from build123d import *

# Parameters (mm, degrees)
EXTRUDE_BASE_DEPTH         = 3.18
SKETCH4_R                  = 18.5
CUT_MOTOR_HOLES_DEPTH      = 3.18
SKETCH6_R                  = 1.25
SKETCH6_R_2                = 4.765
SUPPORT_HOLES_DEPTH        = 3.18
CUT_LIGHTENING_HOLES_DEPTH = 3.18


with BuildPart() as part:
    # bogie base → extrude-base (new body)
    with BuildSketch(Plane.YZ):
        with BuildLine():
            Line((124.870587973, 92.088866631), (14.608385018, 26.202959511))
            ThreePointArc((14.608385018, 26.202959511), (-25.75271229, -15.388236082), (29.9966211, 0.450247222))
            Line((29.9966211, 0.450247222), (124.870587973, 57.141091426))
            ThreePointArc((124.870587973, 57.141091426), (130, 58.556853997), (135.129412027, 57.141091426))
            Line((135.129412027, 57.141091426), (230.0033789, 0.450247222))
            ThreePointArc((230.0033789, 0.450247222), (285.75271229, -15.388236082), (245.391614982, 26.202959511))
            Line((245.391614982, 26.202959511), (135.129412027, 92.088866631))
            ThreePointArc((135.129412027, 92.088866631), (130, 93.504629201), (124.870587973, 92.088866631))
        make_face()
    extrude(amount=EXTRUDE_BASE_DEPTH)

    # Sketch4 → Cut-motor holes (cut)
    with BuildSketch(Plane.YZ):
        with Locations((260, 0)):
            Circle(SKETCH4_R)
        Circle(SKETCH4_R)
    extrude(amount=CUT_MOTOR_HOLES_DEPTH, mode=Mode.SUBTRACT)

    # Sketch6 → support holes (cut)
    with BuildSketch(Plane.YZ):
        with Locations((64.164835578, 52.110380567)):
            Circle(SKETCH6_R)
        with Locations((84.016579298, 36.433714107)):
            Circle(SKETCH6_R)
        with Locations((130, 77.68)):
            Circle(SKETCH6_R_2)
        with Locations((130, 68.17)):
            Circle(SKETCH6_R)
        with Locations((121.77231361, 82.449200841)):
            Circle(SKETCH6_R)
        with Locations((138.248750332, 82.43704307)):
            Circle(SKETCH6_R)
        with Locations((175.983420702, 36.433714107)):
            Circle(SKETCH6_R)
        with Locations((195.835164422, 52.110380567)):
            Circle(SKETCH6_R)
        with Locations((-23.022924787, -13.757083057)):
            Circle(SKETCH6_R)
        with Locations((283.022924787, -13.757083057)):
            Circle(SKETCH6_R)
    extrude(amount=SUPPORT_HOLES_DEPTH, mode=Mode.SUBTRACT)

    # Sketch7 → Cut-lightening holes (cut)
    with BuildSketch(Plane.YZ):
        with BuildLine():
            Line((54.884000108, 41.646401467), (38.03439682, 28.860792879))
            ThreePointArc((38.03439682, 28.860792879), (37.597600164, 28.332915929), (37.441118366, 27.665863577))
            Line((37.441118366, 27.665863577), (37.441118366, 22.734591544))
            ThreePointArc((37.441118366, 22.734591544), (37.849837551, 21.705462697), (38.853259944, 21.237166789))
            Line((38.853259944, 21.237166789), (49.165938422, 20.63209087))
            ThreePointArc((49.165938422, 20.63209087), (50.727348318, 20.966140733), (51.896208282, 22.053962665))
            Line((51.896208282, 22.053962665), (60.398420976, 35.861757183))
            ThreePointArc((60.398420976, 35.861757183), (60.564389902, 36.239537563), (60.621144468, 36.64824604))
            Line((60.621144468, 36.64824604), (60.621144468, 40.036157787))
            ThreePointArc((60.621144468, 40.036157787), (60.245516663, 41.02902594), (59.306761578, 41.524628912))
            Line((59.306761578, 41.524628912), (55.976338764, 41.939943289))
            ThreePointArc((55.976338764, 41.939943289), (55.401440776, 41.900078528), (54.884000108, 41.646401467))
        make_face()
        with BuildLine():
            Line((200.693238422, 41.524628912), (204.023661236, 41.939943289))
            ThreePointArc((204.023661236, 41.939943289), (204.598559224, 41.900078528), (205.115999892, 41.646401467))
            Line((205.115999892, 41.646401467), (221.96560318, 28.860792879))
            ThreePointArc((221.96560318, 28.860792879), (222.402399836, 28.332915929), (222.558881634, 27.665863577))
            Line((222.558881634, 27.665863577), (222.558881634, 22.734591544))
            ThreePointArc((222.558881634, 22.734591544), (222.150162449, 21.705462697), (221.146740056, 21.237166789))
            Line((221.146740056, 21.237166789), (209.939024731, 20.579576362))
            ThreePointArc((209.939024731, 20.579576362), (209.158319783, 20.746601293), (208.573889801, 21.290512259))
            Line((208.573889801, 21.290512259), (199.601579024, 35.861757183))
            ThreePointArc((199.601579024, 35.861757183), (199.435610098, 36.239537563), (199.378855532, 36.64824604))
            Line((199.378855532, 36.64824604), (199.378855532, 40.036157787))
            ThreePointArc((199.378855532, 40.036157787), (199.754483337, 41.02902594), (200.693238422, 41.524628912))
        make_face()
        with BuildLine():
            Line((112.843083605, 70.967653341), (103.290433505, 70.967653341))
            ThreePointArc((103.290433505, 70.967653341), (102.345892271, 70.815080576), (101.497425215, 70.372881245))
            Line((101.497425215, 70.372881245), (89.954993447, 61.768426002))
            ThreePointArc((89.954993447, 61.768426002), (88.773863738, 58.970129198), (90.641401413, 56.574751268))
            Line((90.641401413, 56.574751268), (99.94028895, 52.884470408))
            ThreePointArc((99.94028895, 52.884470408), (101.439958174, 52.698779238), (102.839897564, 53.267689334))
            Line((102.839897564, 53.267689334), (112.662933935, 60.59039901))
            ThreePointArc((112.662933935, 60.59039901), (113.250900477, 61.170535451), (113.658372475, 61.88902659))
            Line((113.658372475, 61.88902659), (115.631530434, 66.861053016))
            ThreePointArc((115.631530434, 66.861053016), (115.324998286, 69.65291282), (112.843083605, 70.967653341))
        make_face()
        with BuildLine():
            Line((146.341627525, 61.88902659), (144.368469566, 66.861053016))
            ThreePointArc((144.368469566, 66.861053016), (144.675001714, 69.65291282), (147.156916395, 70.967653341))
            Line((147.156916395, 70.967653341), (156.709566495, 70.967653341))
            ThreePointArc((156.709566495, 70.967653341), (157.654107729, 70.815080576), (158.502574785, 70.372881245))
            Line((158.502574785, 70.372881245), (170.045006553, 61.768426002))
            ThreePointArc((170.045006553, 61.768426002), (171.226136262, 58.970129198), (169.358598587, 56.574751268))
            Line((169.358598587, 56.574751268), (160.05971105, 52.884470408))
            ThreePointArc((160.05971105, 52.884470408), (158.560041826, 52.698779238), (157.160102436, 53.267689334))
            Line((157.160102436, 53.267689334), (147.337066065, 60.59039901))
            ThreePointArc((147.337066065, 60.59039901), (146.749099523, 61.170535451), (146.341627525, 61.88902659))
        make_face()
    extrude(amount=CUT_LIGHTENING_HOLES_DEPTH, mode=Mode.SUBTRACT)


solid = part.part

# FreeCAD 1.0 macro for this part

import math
import FreeCAD as App
import Part
import Sketcher

V = App.Vector
Q = App.Units.Quantity

doc = App.newDocument("Part")
body = doc.addObject("PartDesign::Body", "Body")

sketch1 = doc.addObject("Sketcher::SketchObject", "Sketch")
body.addObject(sketch1)
sketch1.AttachmentSupport = (doc.YZ_Plane, [""])
sketch1.MapMode = "FlatFace"
sketch1.addGeometry(Part.LineSegment(V(124.870588, 92.088867, 0), V(14.608385, 26.20296, 0)), False)
sketch1.addGeometry(Part.ArcOfCircle(Part.Circle(V(0, 0, 0), V(0, 0, 1), 30), math.radians(60.859941), math.radians(360.859941)), False)
sketch1.addGeometry(Part.LineSegment(V(29.996621, 0.450247, 0), V(124.870588, 57.141091, 0)), False)
sketch1.addGeometry(Part.ArcOfCircle(Part.Circle(V(130, 48.556854, 0), V(0, 0, 1), 10), math.radians(59.140059), math.radians(120.859941)), False)
sketch1.addGeometry(Part.LineSegment(V(135.129412, 57.141091, 0), V(230.003379, 0.450247, 0)), False)
sketch1.addGeometry(Part.ArcOfCircle(Part.Circle(V(260, 0, 0), V(0, 0, 1), 30), math.radians(179.140059), math.radians(479.140059)), False)
sketch1.addGeometry(Part.LineSegment(V(245.391615, 26.20296, 0), V(135.129412, 92.088867, 0)), False)
sketch1.addGeometry(Part.ArcOfCircle(Part.Circle(V(130, 83.504629, 0), V(0, 0, 1), 10), math.radians(59.140059), math.radians(120.859941)), False)
sketch1.addConstraint(Sketcher.Constraint("Coincident", 0, 2, 1, 1))
sketch1.addConstraint(Sketcher.Constraint("Coincident", 1, 2, 2, 1))
sketch1.addConstraint(Sketcher.Constraint("Tangent", 2, 2, 3, 2))
sketch1.addConstraint(Sketcher.Constraint("Tangent", 3, 1, 4, 1))
sketch1.addConstraint(Sketcher.Constraint("Coincident", 4, 2, 5, 1))
sketch1.addConstraint(Sketcher.Constraint("Coincident", 5, 2, 6, 1))
sketch1.addConstraint(Sketcher.Constraint("Tangent", 6, 2, 7, 1))
sketch1.addConstraint(Sketcher.Constraint("Tangent", 7, 2, 0, 1))
sketch1.addConstraint(Sketcher.Constraint("Coincident", 1, 3, -1, 1))
sketch1.addConstraint(Sketcher.Constraint("Equal", 1, 5))
sketch1.addConstraint(Sketcher.Constraint("Equal", 3, 7))
sketch1.addConstraint(Sketcher.Constraint("PointOnObject", 5, 3, -1))
sketch1.addConstraint(Sketcher.Constraint("Parallel", 0, 2))
sketch1.addConstraint(Sketcher.Constraint("Parallel", 4, 6))
sketch1.addConstraint(Sketcher.Constraint("Horizontal", 2, 2, 3, 1))
sketch1.addConstraint(Sketcher.Constraint("Horizontal", 1, 2, 4, 2))
sketch1.addConstraint(Sketcher.Constraint("Horizontal", 0, 2, 5, 2))
sketch1.addConstraint(Sketcher.Constraint("Radius", 1, Q("30 mm")))
sketch1.addConstraint(Sketcher.Constraint("Radius", 3, Q("10 mm")))
sketch1.addConstraint(Sketcher.Constraint("DistanceX", -1, 1, 3, 3, Q("130 mm")))
sketch1.addConstraint(Sketcher.Constraint("Distance", 0, Q("128.447289 mm")))
sketch1.addConstraint(Sketcher.Constraint("DistanceY", -1, 1, 7, 3, Q("83.504629 mm")))
sketch1.addConstraint(Sketcher.Constraint("DistanceX", -1, 1, 1, 2, Q("29.996621 mm")))
pad1 = doc.addObject("PartDesign::Pad", "Pad")
body.addObject(pad1)
pad1.Profile = sketch1
pad1.Length = 3.18

sketch2 = doc.addObject("Sketcher::SketchObject", "Sketch001")
body.addObject(sketch2)
sketch2.AttachmentSupport = (doc.YZ_Plane, [""])
sketch2.MapMode = "FlatFace"
sketch2.addGeometry(Part.Circle(V(260, 0, 0), V(0, 0, 1), 18.5), False)
sketch2.addGeometry(Part.Circle(V(0, 0, 0), V(0, 0, 1), 18.5), False)
sketch2.addConstraint(Sketcher.Constraint("Coincident", 1, 3, -1, 1))
sketch2.addConstraint(Sketcher.Constraint("Equal", 0, 1))
sketch2.addConstraint(Sketcher.Constraint("PointOnObject", 0, 3, -1))
sketch2.addConstraint(Sketcher.Constraint("Diameter", 0, Q("37 mm")))
sketch2.addConstraint(Sketcher.Constraint("DistanceX", -1, 1, 0, 3, Q("260 mm")))
pocket1 = doc.addObject("PartDesign::Pocket", "Pocket")
body.addObject(pocket1)
pocket1.Profile = sketch2
pocket1.Length = 3.18
pocket1.Reversed = True

sketch3 = doc.addObject("Sketcher::SketchObject", "Sketch002")
body.addObject(sketch3)
sketch3.AttachmentSupport = (doc.YZ_Plane, [""])
sketch3.MapMode = "FlatFace"
sketch3.addGeometry(Part.Circle(V(64.164836, 52.110381, 0), V(0, 0, 1), 1.25), False)
sketch3.addGeometry(Part.Circle(V(84.016579, 36.433714, 0), V(0, 0, 1), 1.25), False)
sketch3.addGeometry(Part.Circle(V(130, 77.68, 0), V(0, 0, 1), 4.765), False)
sketch3.addGeometry(Part.Circle(V(130, 68.17, 0), V(0, 0, 1), 1.25), False)
sketch3.addGeometry(Part.Circle(V(121.772314, 82.449201, 0), V(0, 0, 1), 1.25), False)
sketch3.addGeometry(Part.Circle(V(138.24875, 82.437043, 0), V(0, 0, 1), 1.25), False)
sketch3.addGeometry(Part.Circle(V(175.983421, 36.433714, 0), V(0, 0, 1), 1.25), False)
sketch3.addGeometry(Part.Circle(V(195.835164, 52.110381, 0), V(0, 0, 1), 1.25), False)
sketch3.addGeometry(Part.Circle(V(-23.022925, -13.757083, 0), V(0, 0, 1), 1.25), False)
sketch3.addGeometry(Part.Circle(V(283.022925, -13.757083, 0), V(0, 0, 1), 1.25), False)
sketch3.addConstraint(Sketcher.Constraint("Equal", 0, 1))
sketch3.addConstraint(Sketcher.Constraint("Equal", 1, 3))
sketch3.addConstraint(Sketcher.Constraint("Equal", 3, 4))
sketch3.addConstraint(Sketcher.Constraint("Equal", 4, 5))
sketch3.addConstraint(Sketcher.Constraint("Equal", 5, 6))
sketch3.addConstraint(Sketcher.Constraint("Equal", 6, 7))
sketch3.addConstraint(Sketcher.Constraint("Equal", 7, 8))
sketch3.addConstraint(Sketcher.Constraint("Equal", 8, 9))
sketch3.addConstraint(Sketcher.Constraint("Horizontal", 1, 3, 6, 3))
sketch3.addConstraint(Sketcher.Constraint("Horizontal", 0, 3, 7, 3))
sketch3.addConstraint(Sketcher.Constraint("Horizontal", 8, 3, 9, 3))
sketch3.addConstraint(Sketcher.Constraint("Vertical", 2, 3, 3, 3))
sketch3.addConstraint(Sketcher.Constraint("Diameter", 0, Q("2.5 mm")))
sketch3.addConstraint(Sketcher.Constraint("Diameter", 2, Q("9.53 mm")))
sketch3.addConstraint(Sketcher.Constraint("DistanceX", -1, 1, 2, 3, Q("130 mm")))
sketch3.addConstraint(Sketcher.Constraint("DistanceY", -1, 1, 2, 3, Q("77.68 mm")))
sketch3.addConstraint(Sketcher.Constraint("DistanceY", -1, 1, 3, 3, Q("68.17 mm")))
sketch3.addConstraint(Sketcher.Constraint("DistanceY", -1, 1, 4, 3, Q("82.449201 mm")))
sketch3.addConstraint(Sketcher.Constraint("DistanceY", -1, 1, 0, 3, Q("52.110381 mm")))
sketch3.addConstraint(Sketcher.Constraint("DistanceX", -1, 1, 1, 3, Q("84.016579 mm")))
sketch3.addConstraint(Sketcher.Constraint("DistanceX", -1, 1, 5, 3, Q("138.24875 mm")))
sketch3.addConstraint(Sketcher.Constraint("DistanceX", -1, 1, 6, 3, Q("175.983421 mm")))
sketch3.addConstraint(Sketcher.Constraint("DistanceX", 0, 3, 4, 3, Q("57.607478 mm")))
sketch3.addConstraint(Sketcher.Constraint("DistanceY", 1, 3, 5, 3, Q("46.003329 mm")))
sketch3.addConstraint(Sketcher.Constraint("DistanceX", 4, 3, 7, 3, Q("74.062851 mm")))
sketch3.addConstraint(Sketcher.Constraint("DistanceX", 8, 3, 0, 3, Q("87.18776 mm")))
sketch3.addConstraint(Sketcher.Constraint("DistanceX", 7, 3, 9, 3, Q("87.18776 mm")))
sketch3.addConstraint(Sketcher.Constraint("DistanceX", -1, 1, 0, 3, Q("64.164836 mm")))
sketch3.addConstraint(Sketcher.Constraint("DistanceY", -1, 1, 1, 3, Q("36.433714 mm")))
sketch3.addConstraint(Sketcher.Constraint("DistanceY", 8, 3, -1, 1, Q("13.757083 mm")))
pocket2 = doc.addObject("PartDesign::Pocket", "Pocket001")
body.addObject(pocket2)
pocket2.Profile = sketch3
pocket2.Length = 3.18
pocket2.Reversed = True

sketch4 = doc.addObject("Sketcher::SketchObject", "Sketch003")
body.addObject(sketch4)
sketch4.AttachmentSupport = (doc.YZ_Plane, [""])
sketch4.MapMode = "FlatFace"
sketch4.addGeometry(Part.LineSegment(V(54.884, 41.646401, 0), V(38.034397, 28.860793, 0)), False)
sketch4.addGeometry(Part.ArcOfCircle(Part.Circle(V(38.941118, 27.665864, 0), V(0, 0, 1), 1.5), math.radians(127.191506), math.radians(180)), False)
sketch4.addGeometry(Part.LineSegment(V(37.441118, 27.665864, 0), V(37.441118, 22.734592, 0)), False)
sketch4.addGeometry(Part.ArcOfCircle(Part.Circle(V(38.941118, 22.734592, 0), V(0, 0, 1), 1.5), math.radians(180), math.radians(266.642134)), False)
sketch4.addGeometry(Part.LineSegment(V(38.85326, 21.237167, 0), V(49.165938, 20.632091, 0)), False)
sketch4.addGeometry(Part.ArcOfCircle(Part.Circle(V(49.341655, 23.62694, 0), V(0, 0, 1), 3), math.radians(-93.357866), math.radians(-31.622875)), False)
sketch4.addGeometry(Part.LineSegment(V(51.896208, 22.053963, 0), V(60.398421, 35.861757, 0)), False)
sketch4.addGeometry(Part.ArcOfCircle(Part.Circle(V(59.121144, 36.648246, 0), V(0, 0, 1), 1.5), math.radians(-31.622875), math.radians(0)), False)
sketch4.addGeometry(Part.LineSegment(V(60.621144, 36.648246, 0), V(60.621144, 40.036158, 0)), False)
sketch4.addGeometry(Part.ArcOfCircle(Part.Circle(V(59.121144, 40.036158, 0), V(0, 0, 1), 1.5), math.radians(0), math.radians(82.891728)), False)
sketch4.addGeometry(Part.LineSegment(V(59.306762, 41.524629, 0), V(55.976339, 41.939943, 0)), False)
sketch4.addGeometry(Part.ArcOfCircle(Part.Circle(V(55.790722, 40.451472, 0), V(0, 0, 1), 1.5), math.radians(82.891728), math.radians(127.191506)), False)
sketch4.addGeometry(Part.LineSegment(V(204.023661, 41.939943, 0), V(200.693238, 41.524629, 0)), False)
sketch4.addGeometry(Part.ArcOfCircle(Part.Circle(V(200.878856, 40.036158, 0), V(0, 0, 1), 1.5), math.radians(97.108272), math.radians(180)), False)
sketch4.addGeometry(Part.LineSegment(V(199.378856, 40.036158, 0), V(199.378856, 36.648246, 0)), False)
sketch4.addGeometry(Part.ArcOfCircle(Part.Circle(V(200.878856, 36.648246, 0), V(0, 0, 1), 1.5), math.radians(180), math.radians(211.622875)), False)
sketch4.addGeometry(Part.LineSegment(V(199.601579, 35.861757, 0), V(208.57389, 21.290512, 0)), False)
sketch4.addGeometry(Part.ArcOfCircle(Part.Circle(V(209.851166, 22.077001, 0), V(0, 0, 1), 1.5), math.radians(-148.377125), math.radians(-86.642134)), False)
sketch4.addGeometry(Part.LineSegment(V(209.939025, 20.579576, 0), V(221.14674, 21.237167, 0)), False)
sketch4.addGeometry(Part.ArcOfCircle(Part.Circle(V(221.058882, 22.734592, 0), V(0, 0, 1), 1.5), math.radians(-86.642134), math.radians(0)), False)
sketch4.addGeometry(Part.LineSegment(V(222.558882, 22.734592, 0), V(222.558882, 27.665864, 0)), False)
sketch4.addGeometry(Part.ArcOfCircle(Part.Circle(V(221.058882, 27.665864, 0), V(0, 0, 1), 1.5), math.radians(0), math.radians(52.808494)), False)
sketch4.addGeometry(Part.LineSegment(V(221.965603, 28.860793, 0), V(205.116, 41.646401, 0)), False)
sketch4.addGeometry(Part.ArcOfCircle(Part.Circle(V(204.209278, 40.451472, 0), V(0, 0, 1), 1.5), math.radians(52.808494), math.radians(97.108272)), False)
sketch4.addGeometry(Part.LineSegment(V(112.843084, 70.967653, 0), V(103.290434, 70.967653, 0)), False)
sketch4.addGeometry(Part.ArcOfCircle(Part.Circle(V(103.290434, 67.967653, 0), V(0, 0, 1), 3), math.radians(90), math.radians(126.703165)), False)
sketch4.addGeometry(Part.LineSegment(V(101.497425, 70.372881, 0), V(89.954993, 61.768426, 0)), False)
sketch4.addGeometry(Part.ArcOfCircle(Part.Circle(V(91.748002, 59.363198, 0), V(0, 0, 1), 3), math.radians(126.703165), math.radians(248.354255)), False)
sketch4.addGeometry(Part.LineSegment(V(90.641401, 56.574751, 0), V(99.940289, 52.88447, 0)), False)
sketch4.addGeometry(Part.ArcOfCircle(Part.Circle(V(101.046889, 55.672917, 0), V(0, 0, 1), 3), math.radians(-111.645745), math.radians(-53.296835)), False)
sketch4.addGeometry(Part.LineSegment(V(102.839898, 53.267689, 0), V(112.662934, 60.590399, 0)), False)
sketch4.addGeometry(Part.ArcOfCircle(Part.Circle(V(110.869926, 62.995627, 0), V(0, 0, 1), 3), math.radians(-53.296835), math.radians(-21.645745)), False)
sketch4.addGeometry(Part.LineSegment(V(113.658372, 61.889027, 0), V(115.63153, 66.861053, 0)), False)
sketch4.addGeometry(Part.ArcOfCircle(Part.Circle(V(112.843084, 67.967653, 0), V(0, 0, 1), 3), math.radians(-21.645745), math.radians(90)), False)
sketch4.addGeometry(Part.LineSegment(V(144.36847, 66.861053, 0), V(146.341628, 61.889027, 0)), False)
sketch4.addGeometry(Part.ArcOfCircle(Part.Circle(V(149.130074, 62.995627, 0), V(0, 0, 1), 3), math.radians(-158.354255), math.radians(-126.703165)), False)
sketch4.addGeometry(Part.LineSegment(V(147.337066, 60.590399, 0), V(157.160102, 53.267689, 0)), False)
sketch4.addGeometry(Part.ArcOfCircle(Part.Circle(V(158.953111, 55.672917, 0), V(0, 0, 1), 3), math.radians(-126.703165), math.radians(-68.354255)), False)
sketch4.addGeometry(Part.LineSegment(V(160.059711, 52.88447, 0), V(169.358599, 56.574751, 0)), False)
sketch4.addGeometry(Part.ArcOfCircle(Part.Circle(V(168.251998, 59.363198, 0), V(0, 0, 1), 3), math.radians(-68.354255), math.radians(53.296835)), False)
sketch4.addGeometry(Part.LineSegment(V(170.045007, 61.768426, 0), V(158.502575, 70.372881, 0)), False)
sketch4.addGeometry(Part.ArcOfCircle(Part.Circle(V(156.709566, 67.967653, 0), V(0, 0, 1), 3), math.radians(53.296835), math.radians(90)), False)
sketch4.addGeometry(Part.LineSegment(V(156.709566, 70.967653, 0), V(147.156916, 70.967653, 0)), False)
sketch4.addGeometry(Part.ArcOfCircle(Part.Circle(V(147.156916, 67.967653, 0), V(0, 0, 1), 3), math.radians(90), math.radians(201.645745)), False)
sketch4.addConstraint(Sketcher.Constraint("Tangent", 0, 2, 1, 1))
sketch4.addConstraint(Sketcher.Constraint("Tangent", 1, 2, 2, 1))
sketch4.addConstraint(Sketcher.Constraint("Tangent", 2, 2, 3, 1))
sketch4.addConstraint(Sketcher.Constraint("Tangent", 3, 2, 4, 1))
sketch4.addConstraint(Sketcher.Constraint("Tangent", 4, 2, 5, 1))
sketch4.addConstraint(Sketcher.Constraint("Tangent", 5, 2, 6, 1))
sketch4.addConstraint(Sketcher.Constraint("Tangent", 6, 2, 7, 1))
sketch4.addConstraint(Sketcher.Constraint("Tangent", 7, 2, 8, 1))
sketch4.addConstraint(Sketcher.Constraint("Tangent", 8, 2, 9, 1))
sketch4.addConstraint(Sketcher.Constraint("Tangent", 9, 2, 10, 1))
sketch4.addConstraint(Sketcher.Constraint("Tangent", 10, 2, 11, 1))
sketch4.addConstraint(Sketcher.Constraint("Tangent", 11, 2, 0, 1))
sketch4.addConstraint(Sketcher.Constraint("Tangent", 12, 2, 13, 1))
sketch4.addConstraint(Sketcher.Constraint("Tangent", 13, 2, 14, 1))
sketch4.addConstraint(Sketcher.Constraint("Tangent", 14, 2, 15, 1))
sketch4.addConstraint(Sketcher.Constraint("Tangent", 15, 2, 16, 1))
sketch4.addConstraint(Sketcher.Constraint("Tangent", 16, 2, 17, 1))
sketch4.addConstraint(Sketcher.Constraint("Tangent", 17, 2, 18, 1))
sketch4.addConstraint(Sketcher.Constraint("Tangent", 18, 2, 19, 1))
sketch4.addConstraint(Sketcher.Constraint("Tangent", 19, 2, 20, 1))
sketch4.addConstraint(Sketcher.Constraint("Tangent", 20, 2, 21, 1))
sketch4.addConstraint(Sketcher.Constraint("Tangent", 21, 2, 22, 1))
sketch4.addConstraint(Sketcher.Constraint("Tangent", 22, 2, 23, 1))
sketch4.addConstraint(Sketcher.Constraint("Tangent", 23, 2, 12, 1))
sketch4.addConstraint(Sketcher.Constraint("Tangent", 24, 2, 25, 1))
sketch4.addConstraint(Sketcher.Constraint("Tangent", 25, 2, 26, 1))
sketch4.addConstraint(Sketcher.Constraint("Tangent", 26, 2, 27, 1))
sketch4.addConstraint(Sketcher.Constraint("Tangent", 27, 2, 28, 1))
sketch4.addConstraint(Sketcher.Constraint("Tangent", 28, 2, 29, 1))
sketch4.addConstraint(Sketcher.Constraint("Tangent", 29, 2, 30, 1))
sketch4.addConstraint(Sketcher.Constraint("Tangent", 30, 2, 31, 1))
sketch4.addConstraint(Sketcher.Constraint("Tangent", 31, 2, 32, 1))
sketch4.addConstraint(Sketcher.Constraint("Tangent", 32, 2, 33, 1))
sketch4.addConstraint(Sketcher.Constraint("Tangent", 33, 2, 24, 1))
sketch4.addConstraint(Sketcher.Constraint("Tangent", 34, 2, 35, 1))
sketch4.addConstraint(Sketcher.Constraint("Tangent", 35, 2, 36, 1))
sketch4.addConstraint(Sketcher.Constraint("Tangent", 36, 2, 37, 1))
sketch4.addConstraint(Sketcher.Constraint("Tangent", 37, 2, 38, 1))
sketch4.addConstraint(Sketcher.Constraint("Tangent", 38, 2, 39, 1))
sketch4.addConstraint(Sketcher.Constraint("Tangent", 39, 2, 40, 1))
sketch4.addConstraint(Sketcher.Constraint("Tangent", 40, 2, 41, 1))
sketch4.addConstraint(Sketcher.Constraint("Tangent", 41, 2, 42, 1))
sketch4.addConstraint(Sketcher.Constraint("Tangent", 42, 2, 43, 1))
sketch4.addConstraint(Sketcher.Constraint("Tangent", 43, 2, 34, 1))
sketch4.addConstraint(Sketcher.Constraint("Vertical", 2))
sketch4.addConstraint(Sketcher.Constraint("Vertical", 8))
sketch4.addConstraint(Sketcher.Constraint("Vertical", 14))
sketch4.addConstraint(Sketcher.Constraint("Vertical", 20))
sketch4.addConstraint(Sketcher.Constraint("Horizontal", 24))
sketch4.addConstraint(Sketcher.Constraint("Horizontal", 42))
sketch4.addConstraint(Sketcher.Constraint("Equal", 1, 3))
sketch4.addConstraint(Sketcher.Constraint("Equal", 3, 7))
sketch4.addConstraint(Sketcher.Constraint("Equal", 7, 9))
sketch4.addConstraint(Sketcher.Constraint("Equal", 9, 11))
sketch4.addConstraint(Sketcher.Constraint("Equal", 11, 13))
sketch4.addConstraint(Sketcher.Constraint("Equal", 13, 15))
sketch4.addConstraint(Sketcher.Constraint("Equal", 15, 17))
sketch4.addConstraint(Sketcher.Constraint("Equal", 17, 19))
sketch4.addConstraint(Sketcher.Constraint("Equal", 19, 21))
sketch4.addConstraint(Sketcher.Constraint("Equal", 21, 23))
sketch4.addConstraint(Sketcher.Constraint("Equal", 5, 25))
sketch4.addConstraint(Sketcher.Constraint("Equal", 25, 27))
sketch4.addConstraint(Sketcher.Constraint("Equal", 27, 29))
sketch4.addConstraint(Sketcher.Constraint("Equal", 29, 31))
sketch4.addConstraint(Sketcher.Constraint("Equal", 31, 33))
sketch4.addConstraint(Sketcher.Constraint("Equal", 33, 35))
sketch4.addConstraint(Sketcher.Constraint("Equal", 35, 37))
sketch4.addConstraint(Sketcher.Constraint("Equal", 37, 39))
sketch4.addConstraint(Sketcher.Constraint("Equal", 39, 41))
sketch4.addConstraint(Sketcher.Constraint("Equal", 41, 43))
sketch4.addConstraint(Sketcher.Constraint("Parallel", 26, 30))
sketch4.addConstraint(Sketcher.Constraint("Perpendicular", 28, 32))
sketch4.addConstraint(Sketcher.Constraint("Perpendicular", 34, 38))
sketch4.addConstraint(Sketcher.Constraint("Parallel", 36, 40))
sketch4.addConstraint(Sketcher.Constraint("Horizontal", 9, 3, 13, 3))
sketch4.addConstraint(Sketcher.Constraint("Horizontal", 7, 3, 15, 3))
sketch4.addConstraint(Sketcher.Constraint("Horizontal", 3, 3, 19, 3))
sketch4.addConstraint(Sketcher.Constraint("Horizontal", 1, 3, 21, 3))
sketch4.addConstraint(Sketcher.Constraint("Horizontal", 11, 3, 23, 3))
sketch4.addConstraint(Sketcher.Constraint("Horizontal", 31, 3, 35, 3))
sketch4.addConstraint(Sketcher.Constraint("Horizontal", 29, 3, 37, 3))
sketch4.addConstraint(Sketcher.Constraint("Horizontal", 27, 3, 39, 3))
sketch4.addConstraint(Sketcher.Constraint("Horizontal", 33, 3, 41, 3))
sketch4.addConstraint(Sketcher.Constraint("Horizontal", 9, 2, 12, 2))
sketch4.addConstraint(Sketcher.Constraint("Horizontal", 6, 2, 15, 2))
sketch4.addConstraint(Sketcher.Constraint("Horizontal", 3, 2, 18, 2))
sketch4.addConstraint(Sketcher.Constraint("Horizontal", 0, 2, 21, 2))
sketch4.addConstraint(Sketcher.Constraint("Horizontal", 31, 2, 34, 2))
sketch4.addConstraint(Sketcher.Constraint("Horizontal", 30, 2, 35, 2))
sketch4.addConstraint(Sketcher.Constraint("Radius", 5, Q("3 mm")))
sketch4.addConstraint(Sketcher.Constraint("Radius", 1, Q("1.5 mm")))
sketch4.addConstraint(Sketcher.Constraint("DistanceY", -1, 1, 17, 3, Q("22.077001 mm")))
sketch4.addConstraint(Sketcher.Constraint("DistanceX", -1, 1, 27, 3, Q("91.748002 mm")))
sketch4.addConstraint(Sketcher.Constraint("DistanceX", -1, 1, 39, 3, Q("168.251998 mm")))
sketch4.addConstraint(Sketcher.Constraint("DistanceX", -1, 1, 11, 2, Q("54.884 mm")))
sketch4.addConstraint(Sketcher.Constraint("DistanceX", -1, 1, 22, 2, Q("205.116 mm")))
sketch4.addConstraint(Sketcher.Constraint("DistanceX", 24, 2, 24, 1, Q("9.55265 mm")))
sketch4.addConstraint(Sketcher.Constraint("DistanceY", 8, 1, 8, 2, Q("3.387912 mm")))
sketch4.addConstraint(Sketcher.Constraint("DistanceY", -1, 1, 27, 3, Q("59.363198 mm")))
sketch4.addConstraint(Sketcher.Constraint("DistanceY", -1, 1, 11, 2, Q("41.646401 mm")))
sketch4.addConstraint(Sketcher.Constraint("DistanceX", -1, 1, 27, 2, Q("90.641401 mm")))
sketch4.addConstraint(Sketcher.Constraint("DistanceY", -1, 1, 30, 2, Q("60.590399 mm")))
sketch4.addConstraint(Sketcher.Constraint("Distance", 0, Q("21.151381 mm")))
sketch4.addConstraint(Sketcher.Constraint("Distance", 6, Q("16.215511 mm")))
sketch4.addConstraint(Sketcher.Constraint("Distance", 10, Q("3.356218 mm")))
sketch4.addConstraint(Sketcher.Constraint("Distance", 18, Q("11.22699 mm")))
sketch4.addConstraint(Sketcher.Constraint("Distance", 26, Q("14.39668 mm")))
sketch4.addConstraint(Sketcher.Constraint("DistanceY", 2, 2, 2, 1, Q("4.931272 mm")))
sketch4.addConstraint(Sketcher.Constraint("DistanceX", -1, 1, 1, 3, Q("38.941118 mm")))
sketch4.addConstraint(Sketcher.Constraint("DistanceX", -1, 1, 29, 3, Q("101.046889 mm")))
pocket3 = doc.addObject("PartDesign::Pocket", "Pocket002")
body.addObject(pocket3)
pocket3.Profile = sketch4
pocket3.Length = 3.18
pocket3.Reversed = True

doc.recompute()
